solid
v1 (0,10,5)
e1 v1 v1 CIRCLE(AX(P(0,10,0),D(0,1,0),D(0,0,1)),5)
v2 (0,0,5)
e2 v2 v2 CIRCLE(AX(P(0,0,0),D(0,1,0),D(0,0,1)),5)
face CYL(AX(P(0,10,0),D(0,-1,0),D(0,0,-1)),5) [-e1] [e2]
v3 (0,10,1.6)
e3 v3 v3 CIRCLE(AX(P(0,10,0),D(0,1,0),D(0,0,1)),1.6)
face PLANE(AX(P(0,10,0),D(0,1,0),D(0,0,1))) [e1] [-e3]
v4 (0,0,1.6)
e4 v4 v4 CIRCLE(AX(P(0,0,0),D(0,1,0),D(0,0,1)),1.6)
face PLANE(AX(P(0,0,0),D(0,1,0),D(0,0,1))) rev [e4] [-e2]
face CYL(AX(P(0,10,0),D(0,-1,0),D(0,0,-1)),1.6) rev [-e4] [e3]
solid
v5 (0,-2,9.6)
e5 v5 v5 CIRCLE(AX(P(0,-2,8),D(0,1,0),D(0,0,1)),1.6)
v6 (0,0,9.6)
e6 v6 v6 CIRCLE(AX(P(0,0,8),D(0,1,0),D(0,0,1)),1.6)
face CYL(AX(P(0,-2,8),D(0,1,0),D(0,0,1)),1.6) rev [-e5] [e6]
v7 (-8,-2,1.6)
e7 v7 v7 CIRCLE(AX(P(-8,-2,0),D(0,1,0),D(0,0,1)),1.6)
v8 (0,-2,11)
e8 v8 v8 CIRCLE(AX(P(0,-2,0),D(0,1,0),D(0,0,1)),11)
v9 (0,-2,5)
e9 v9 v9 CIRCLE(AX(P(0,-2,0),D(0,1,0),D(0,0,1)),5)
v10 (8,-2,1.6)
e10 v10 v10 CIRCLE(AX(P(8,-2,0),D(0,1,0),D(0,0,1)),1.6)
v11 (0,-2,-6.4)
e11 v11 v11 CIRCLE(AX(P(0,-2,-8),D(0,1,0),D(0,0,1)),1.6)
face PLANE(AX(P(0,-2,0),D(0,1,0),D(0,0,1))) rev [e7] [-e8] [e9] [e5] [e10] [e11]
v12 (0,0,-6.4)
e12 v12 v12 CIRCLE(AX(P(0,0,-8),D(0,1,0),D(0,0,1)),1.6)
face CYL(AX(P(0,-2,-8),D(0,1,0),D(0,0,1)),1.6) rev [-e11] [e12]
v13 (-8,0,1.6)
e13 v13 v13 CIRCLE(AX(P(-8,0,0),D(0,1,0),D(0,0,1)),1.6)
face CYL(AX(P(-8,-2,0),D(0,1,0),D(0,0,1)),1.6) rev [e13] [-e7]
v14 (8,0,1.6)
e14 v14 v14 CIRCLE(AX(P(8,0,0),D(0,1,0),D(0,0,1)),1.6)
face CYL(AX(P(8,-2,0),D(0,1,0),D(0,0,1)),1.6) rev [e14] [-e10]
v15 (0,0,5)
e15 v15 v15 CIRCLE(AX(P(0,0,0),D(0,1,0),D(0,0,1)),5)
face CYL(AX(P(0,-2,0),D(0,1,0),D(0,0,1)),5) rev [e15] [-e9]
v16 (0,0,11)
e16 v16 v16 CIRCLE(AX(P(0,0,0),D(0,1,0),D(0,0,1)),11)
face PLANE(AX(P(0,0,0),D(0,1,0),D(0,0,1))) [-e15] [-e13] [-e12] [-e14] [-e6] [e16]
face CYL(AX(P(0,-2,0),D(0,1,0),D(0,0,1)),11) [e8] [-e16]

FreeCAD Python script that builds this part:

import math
import FreeCAD as App
import Part
import Sketcher
from FreeCAD import Vector
Q = App.Units.Quantity

doc = App.newDocument("Part")
body = doc.addObject("PartDesign::Body", "Body")

# Sketch on XZ plane
sketch1 = doc.addObject("Sketcher::SketchObject", "Sketch")
body.addObject(sketch1)
sketch1.AttachmentSupport = (doc.XZ_Plane, [""])
sketch1.MapMode = "FlatFace"
sketch1.addGeometry(Part.Circle(Vector(0, 0, 0), Vector(0, 0, 1), 5), False)
sketch1.addGeometry(Part.Circle(Vector(0, 0, 0), Vector(0, 0, 1), 1.6), False)
sketch1.addConstraint(Sketcher.Constraint("Coincident", 0, 3, -1, 1))
sketch1.addConstraint(Sketcher.Constraint("Coincident", 1, 3, -1, 1))
sketch1.addConstraint(Sketcher.Constraint("Diameter", 0, Q("10 mm")))
sketch1.addConstraint(Sketcher.Constraint("Diameter", 1, Q("3.2 mm")))
pad1 = doc.addObject("PartDesign::Pad", "Pad")
body.addObject(pad1)
pad1.Profile = sketch1
pad1.Length = 10
pad1.Reversed = True
body2 = doc.addObject("PartDesign::Body", "Body001")

# Sketch on XZ plane
sketch2 = doc.addObject("Sketcher::SketchObject", "Sketch001")
body2.addObject(sketch2)
sketch2.AttachmentSupport = (doc.getObject("XZ_Plane001"), [""])
sketch2.MapMode = "FlatFace"
sketch2.addGeometry(Part.ArcOfCircle(Part.Circle(Vector(8, 0, 0), Vector(0, 0, 1), 1.6), math.radians(96), math.radians(264)), False)
sketch2.addGeometry(Part.ArcOfCircle(Part.Circle(Vector(0, 0, 0), Vector(0, 0, 1), 8), math.radians(-79), math.radians(-11)), False)
sketch2.addGeometry(Part.ArcOfCircle(Part.Circle(Vector(0, -8, 0), Vector(0, 0, 1), 1.6), math.radians(6), math.radians(174)), False)
sketch2.addGeometry(Part.ArcOfCircle(Part.Circle(Vector(0, 0, 0), Vector(0, 0, 1), 8), math.radians(-169), math.radians(-101)), False)
sketch2.addGeometry(Part.ArcOfCircle(Part.Circle(Vector(-8, 0, 0), Vector(0, 0, 1), 1.6), math.radians(-84), math.radians(0)), False)
sketch2.addGeometry(Part.ArcOfCircle(Part.Circle(Vector(-8, 0, 0), Vector(0, 0, 1), 1.6), math.radians(0), math.radians(84)), False)
sketch2.addGeometry(Part.ArcOfCircle(Part.Circle(Vector(0, 0, 0), Vector(0, 0, 1), 8), math.radians(101), math.radians(169)), False)
sketch2.addGeometry(Part.ArcOfCircle(Part.Circle(Vector(0, 8, 0), Vector(0, 0, 1), 1.6), math.radians(-174), math.radians(-6)), False)
sketch2.addGeometry(Part.ArcOfCircle(Part.Circle(Vector(0, 0, 0), Vector(0, 0, 1), 8), math.radians(11), math.radians(79)), False)
sketch2.addGeometry(Part.Circle(Vector(0, 0, 0), Vector(0, 0, 1), 5), False)
sketch2.addConstraint(Sketcher.Constraint("Coincident", 0, 2, 1, 2))
sketch2.addConstraint(Sketcher.Constraint("Coincident", 1, 1, 2, 1))
sketch2.addConstraint(Sketcher.Constraint("Coincident", 2, 2, 3, 2))
sketch2.addConstraint(Sketcher.Constraint("Coincident", 3, 1, 4, 1))
sketch2.addConstraint(Sketcher.Constraint("Tangent", 4, 2, 5, 1))
sketch2.addConstraint(Sketcher.Constraint("Coincident", 5, 2, 6, 2))
sketch2.addConstraint(Sketcher.Constraint("Coincident", 6, 1, 7, 1))
sketch2.addConstraint(Sketcher.Constraint("Coincident", 7, 2, 8, 2))
sketch2.addConstraint(Sketcher.Constraint("Coincident", 8, 1, 0, 1))
sketch2.addConstraint(Sketcher.Constraint("Coincident", 1, 3, -1, 1))
sketch2.addConstraint(Sketcher.Constraint("Coincident", 3, 3, -1, 1))
sketch2.addConstraint(Sketcher.Constraint("Coincident", 6, 3, -1, 1))
sketch2.addConstraint(Sketcher.Constraint("Coincident", 8, 3, -1, 1))
sketch2.addConstraint(Sketcher.Constraint("Coincident", 9, 3, -1, 1))
sketch2.addConstraint(Sketcher.Constraint("Equal", 0, 2))
sketch2.addConstraint(Sketcher.Constraint("Equal", 1, 3))
sketch2.addConstraint(Sketcher.Constraint("Equal", 2, 4))
sketch2.addConstraint(Sketcher.Constraint("Equal", 4, 5))
sketch2.addConstraint(Sketcher.Constraint("Equal", 3, 6))
sketch2.addConstraint(Sketcher.Constraint("Equal", 5, 7))
sketch2.addConstraint(Sketcher.Constraint("Equal", 6, 8))
sketch2.addConstraint(Sketcher.Constraint("Symmetric", 0, 3, 4, 3, -1, 1))
sketch2.addConstraint(Sketcher.Constraint("Symmetric", 2, 3, 7, 3, -1, 1))
sketch2.addConstraint(Sketcher.Constraint("PointOnObject", 0, 3, -1))
sketch2.addConstraint(Sketcher.Constraint("PointOnObject", 2, 3, -2))
sketch2.addConstraint(Sketcher.Constraint("PointOnObject", 4, 2, -1))
sketch2.addConstraint(Sketcher.Constraint("Diameter", 9, Q("10 mm")))
sketch2.addConstraint(Sketcher.Constraint("Radius", 1, Q("8 mm")))
sketch2.addConstraint(Sketcher.Constraint("Radius", 0, Q("1.6 mm")))
sketch2.addConstraint(Sketcher.Constraint("DistanceX", -1, 1, 0, 3, Q("8 mm")))
sketch2.addConstraint(Sketcher.Constraint("DistanceY", 2, 3, -1, 1, Q("8 mm")))
pad2 = doc.addObject("PartDesign::Pad", "Pad001")
body2.addObject(pad2)
pad2.Profile = sketch2
pad2.Length = 2

# Sketch on XZ plane
sketch3 = doc.addObject("Sketcher::SketchObject", "Sketch002")
body2.addObject(sketch3)
sketch3.AttachmentSupport = (doc.getObject("XZ_Plane001"), [""])
sketch3.MapMode = "FlatFace"
sketch3.addGeometry(Part.Circle(Vector(0, 0, 0), Vector(0, 0, 1), 11), False)
sketch3.addGeometry(Part.ArcOfCircle(Part.Circle(Vector(0, -8, 0), Vector(0, 0, 1), 1.6), math.radians(0), math.radians(5.74)), False)
sketch3.addGeometry(Part.ArcOfCircle(Part.Circle(Vector(0, 0, 0), Vector(0, 0, 1), 8), math.radians(-79), math.radians(-11)), False)
sketch3.addGeometry(Part.ArcOfCircle(Part.Circle(Vector(8, 0, 0), Vector(0, 0, 1), 1.6), math.radians(-96), math.radians(0)), False)
sketch3.addGeometry(Part.ArcOfCircle(Part.Circle(Vector(8, 0, 0), Vector(0, 0, 1), 1.6), math.radians(0), math.radians(96)), False)
sketch3.addGeometry(Part.ArcOfCircle(Part.Circle(Vector(0, 0, 0), Vector(0, 0, 1), 8), math.radians(11), math.radians(79)), False)
sketch3.addGeometry(Part.ArcOfCircle(Part.Circle(Vector(0, 8, 0), Vector(0, 0, 1), 1.6), math.radians(-5.74), math.radians(0)), False)
sketch3.addGeometry(Part.ArcOfCircle(Part.Circle(Vector(0, 8, 0), Vector(0, 0, 1), 1.6), math.radians(0), math.radians(186)), False)
sketch3.addGeometry(Part.ArcOfCircle(Part.Circle(Vector(0, 0, 0), Vector(0, 0, 1), 8), math.radians(101), math.radians(169)), False)
sketch3.addGeometry(Part.ArcOfCircle(Part.Circle(Vector(-8, 0, 0), Vector(0, 0, 1), 1.6), math.radians(84), math.radians(276)), False)
sketch3.addGeometry(Part.ArcOfCircle(Part.Circle(Vector(0, 0, 0), Vector(0, 0, 1), 8), math.radians(-169), math.radians(-101)), False)
sketch3.addGeometry(Part.ArcOfCircle(Part.Circle(Vector(0, -8, 0), Vector(0, 0, 1), 1.6), math.radians(174), math.radians(360)), False)
sketch3.addConstraint(Sketcher.Constraint("Coincident", 1, 2, 2, 1))
sketch3.addConstraint(Sketcher.Constraint("Coincident", 2, 2, 3, 1))
sketch3.addConstraint(Sketcher.Constraint("Tangent", 3, 2, 4, 1))
sketch3.addConstraint(Sketcher.Constraint("Coincident", 4, 2, 5, 1))
sketch3.addConstraint(Sketcher.Constraint("Coincident", 5, 2, 6, 1))
sketch3.addConstraint(Sketcher.Constraint("Tangent", 6, 2, 7, 1))
sketch3.addConstraint(Sketcher.Constraint("Coincident", 7, 2, 8, 1))
sketch3.addConstraint(Sketcher.Constraint("Coincident", 8, 2, 9, 1))
sketch3.addConstraint(Sketcher.Constraint("Coincident", 9, 2, 10, 1))
sketch3.addConstraint(Sketcher.Constraint("Coincident", 10, 2, 11, 1))
sketch3.addConstraint(Sketcher.Constraint("Tangent", 11, 2, 1, 1))
sketch3.addConstraint(Sketcher.Constraint("Coincident", 0, 3, -1, 1))
sketch3.addConstraint(Sketcher.Constraint("Coincident", 2, 3, -1, 1))
sketch3.addConstraint(Sketcher.Constraint("Coincident", 5, 3, -1, 1))
sketch3.addConstraint(Sketcher.Constraint("Coincident", 8, 3, -1, 1))
sketch3.addConstraint(Sketcher.Constraint("Coincident", 10, 3, -1, 1))
sketch3.addConstraint(Sketcher.Constraint("Equal", 1, 3))
sketch3.addConstraint(Sketcher.Constraint("Equal", 3, 4))
sketch3.addConstraint(Sketcher.Constraint("Equal", 2, 5))
sketch3.addConstraint(Sketcher.Constraint("Equal", 4, 6))
sketch3.addConstraint(Sketcher.Constraint("Equal", 6, 7))
sketch3.addConstraint(Sketcher.Constraint("Equal", 5, 8))
sketch3.addConstraint(Sketcher.Constraint("Equal", 7, 9))
sketch3.addConstraint(Sketcher.Constraint("Equal", 8, 10))
sketch3.addConstraint(Sketcher.Constraint("Equal", 9, 11))
sketch3.addConstraint(Sketcher.Constraint("Symmetric", 1, 3, 6, 3, -1, 1))
sketch3.addConstraint(Sketcher.Constraint("Symmetric", 3, 3, 9, 3, -1, 1))
sketch3.addConstraint(Sketcher.Constraint("Symmetric", 6, 2, 11, 2, -1))
sketch3.addConstraint(Sketcher.Constraint("PointOnObject", 3, 3, -1))
sketch3.addConstraint(Sketcher.Constraint("PointOnObject", 3, 2, -1))
sketch3.addConstraint(Sketcher.Constraint("Horizontal", 7, 3, 6, 2))
sketch3.addConstraint(Sketcher.Constraint("Diameter", 0, Q("22 mm")))
sketch3.addConstraint(Sketcher.Constraint("Radius", 2, Q("8 mm")))
sketch3.addConstraint(Sketcher.Constraint("Radius", 1, Q("1.6 mm")))
sketch3.addConstraint(Sketcher.Constraint("DistanceY", 1, 3, -1, 1, Q("8 mm")))
sketch3.addConstraint(Sketcher.Constraint("DistanceX", -1, 1, 3, 3, Q("8 mm")))
pad3 = doc.addObject("PartDesign::Pad", "Pad002")
body2.addObject(pad3)
pad3.Profile = sketch3
pad3.Length = 2

doc.recompute()
